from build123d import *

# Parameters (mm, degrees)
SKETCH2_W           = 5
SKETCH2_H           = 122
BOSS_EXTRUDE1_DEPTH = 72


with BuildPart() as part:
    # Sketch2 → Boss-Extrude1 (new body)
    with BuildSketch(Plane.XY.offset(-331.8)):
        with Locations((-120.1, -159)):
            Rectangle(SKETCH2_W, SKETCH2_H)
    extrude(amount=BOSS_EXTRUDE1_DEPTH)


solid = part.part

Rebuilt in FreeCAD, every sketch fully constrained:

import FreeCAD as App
import Part
import Sketcher
from FreeCAD import Vector

doc = App.newDocument("Part")
body = doc.addObject("PartDesign::Body", "Body")

# Sketch on XY plane
sketch1 = body.newObject("Sketcher::SketchObject", "Sketch")
sketch1.AttachmentSupport = (doc.getObject("XY_Plane"), [""])
sketch1.MapMode = "FlatFace"
sketch1.AttachmentOffset = App.Placement(Vector(0, 0, -331.8), App.Rotation())
sketch1.addGeometry(Part.LineSegment(Vector(-122.6, -98, 0), Vector(-122.6, -220, 0)), False)
sketch1.addGeometry(Part.LineSegment(Vector(-122.6, -220, 0), Vector(-117.6, -220, 0)), False)
sketch1.addGeometry(Part.LineSegment(Vector(-117.6, -220, 0), Vector(-117.6, -98, 0)), False)
sketch1.addGeometry(Part.LineSegment(Vector(-117.6, -98, 0), Vector(-122.6, -98, 0)), False)
sketch1.addConstraint(Sketcher.Constraint("Coincident", 0, 2, 1, 1))
sketch1.addConstraint(Sketcher.Constraint("Coincident", 1, 2, 2, 1))
sketch1.addConstraint(Sketcher.Constraint("Coincident", 2, 2, 3, 1))
sketch1.addConstraint(Sketcher.Constraint("Coincident", 3, 2, 0, 1))
sketch1.addConstraint(Sketcher.Constraint("Vertical", 0))
sketch1.addConstraint(Sketcher.Constraint("Horizontal", 1))
sketch1.addConstraint(Sketcher.Constraint("Vertical", 2))
sketch1.addConstraint(Sketcher.Constraint("Horizontal", 3))
sketch1.addConstraint(Sketcher.Constraint("DistanceX", 1, 1, 1, 2, 5.0))
sketch1.addConstraint(Sketcher.Constraint("DistanceY", 0, 2, 0, 1, 122.0))
sketch1.addConstraint(Sketcher.Constraint("DistanceY", 0, 2, -1, 1, 220.0))
sketch1.addConstraint(Sketcher.Constraint("DistanceX", 0, 2, -1, 1, 122.6))
pad1 = body.newObject("PartDesign::Pad", "Pad")
pad1.Profile = sketch1
pad1.Length = 72

doc.recompute()
